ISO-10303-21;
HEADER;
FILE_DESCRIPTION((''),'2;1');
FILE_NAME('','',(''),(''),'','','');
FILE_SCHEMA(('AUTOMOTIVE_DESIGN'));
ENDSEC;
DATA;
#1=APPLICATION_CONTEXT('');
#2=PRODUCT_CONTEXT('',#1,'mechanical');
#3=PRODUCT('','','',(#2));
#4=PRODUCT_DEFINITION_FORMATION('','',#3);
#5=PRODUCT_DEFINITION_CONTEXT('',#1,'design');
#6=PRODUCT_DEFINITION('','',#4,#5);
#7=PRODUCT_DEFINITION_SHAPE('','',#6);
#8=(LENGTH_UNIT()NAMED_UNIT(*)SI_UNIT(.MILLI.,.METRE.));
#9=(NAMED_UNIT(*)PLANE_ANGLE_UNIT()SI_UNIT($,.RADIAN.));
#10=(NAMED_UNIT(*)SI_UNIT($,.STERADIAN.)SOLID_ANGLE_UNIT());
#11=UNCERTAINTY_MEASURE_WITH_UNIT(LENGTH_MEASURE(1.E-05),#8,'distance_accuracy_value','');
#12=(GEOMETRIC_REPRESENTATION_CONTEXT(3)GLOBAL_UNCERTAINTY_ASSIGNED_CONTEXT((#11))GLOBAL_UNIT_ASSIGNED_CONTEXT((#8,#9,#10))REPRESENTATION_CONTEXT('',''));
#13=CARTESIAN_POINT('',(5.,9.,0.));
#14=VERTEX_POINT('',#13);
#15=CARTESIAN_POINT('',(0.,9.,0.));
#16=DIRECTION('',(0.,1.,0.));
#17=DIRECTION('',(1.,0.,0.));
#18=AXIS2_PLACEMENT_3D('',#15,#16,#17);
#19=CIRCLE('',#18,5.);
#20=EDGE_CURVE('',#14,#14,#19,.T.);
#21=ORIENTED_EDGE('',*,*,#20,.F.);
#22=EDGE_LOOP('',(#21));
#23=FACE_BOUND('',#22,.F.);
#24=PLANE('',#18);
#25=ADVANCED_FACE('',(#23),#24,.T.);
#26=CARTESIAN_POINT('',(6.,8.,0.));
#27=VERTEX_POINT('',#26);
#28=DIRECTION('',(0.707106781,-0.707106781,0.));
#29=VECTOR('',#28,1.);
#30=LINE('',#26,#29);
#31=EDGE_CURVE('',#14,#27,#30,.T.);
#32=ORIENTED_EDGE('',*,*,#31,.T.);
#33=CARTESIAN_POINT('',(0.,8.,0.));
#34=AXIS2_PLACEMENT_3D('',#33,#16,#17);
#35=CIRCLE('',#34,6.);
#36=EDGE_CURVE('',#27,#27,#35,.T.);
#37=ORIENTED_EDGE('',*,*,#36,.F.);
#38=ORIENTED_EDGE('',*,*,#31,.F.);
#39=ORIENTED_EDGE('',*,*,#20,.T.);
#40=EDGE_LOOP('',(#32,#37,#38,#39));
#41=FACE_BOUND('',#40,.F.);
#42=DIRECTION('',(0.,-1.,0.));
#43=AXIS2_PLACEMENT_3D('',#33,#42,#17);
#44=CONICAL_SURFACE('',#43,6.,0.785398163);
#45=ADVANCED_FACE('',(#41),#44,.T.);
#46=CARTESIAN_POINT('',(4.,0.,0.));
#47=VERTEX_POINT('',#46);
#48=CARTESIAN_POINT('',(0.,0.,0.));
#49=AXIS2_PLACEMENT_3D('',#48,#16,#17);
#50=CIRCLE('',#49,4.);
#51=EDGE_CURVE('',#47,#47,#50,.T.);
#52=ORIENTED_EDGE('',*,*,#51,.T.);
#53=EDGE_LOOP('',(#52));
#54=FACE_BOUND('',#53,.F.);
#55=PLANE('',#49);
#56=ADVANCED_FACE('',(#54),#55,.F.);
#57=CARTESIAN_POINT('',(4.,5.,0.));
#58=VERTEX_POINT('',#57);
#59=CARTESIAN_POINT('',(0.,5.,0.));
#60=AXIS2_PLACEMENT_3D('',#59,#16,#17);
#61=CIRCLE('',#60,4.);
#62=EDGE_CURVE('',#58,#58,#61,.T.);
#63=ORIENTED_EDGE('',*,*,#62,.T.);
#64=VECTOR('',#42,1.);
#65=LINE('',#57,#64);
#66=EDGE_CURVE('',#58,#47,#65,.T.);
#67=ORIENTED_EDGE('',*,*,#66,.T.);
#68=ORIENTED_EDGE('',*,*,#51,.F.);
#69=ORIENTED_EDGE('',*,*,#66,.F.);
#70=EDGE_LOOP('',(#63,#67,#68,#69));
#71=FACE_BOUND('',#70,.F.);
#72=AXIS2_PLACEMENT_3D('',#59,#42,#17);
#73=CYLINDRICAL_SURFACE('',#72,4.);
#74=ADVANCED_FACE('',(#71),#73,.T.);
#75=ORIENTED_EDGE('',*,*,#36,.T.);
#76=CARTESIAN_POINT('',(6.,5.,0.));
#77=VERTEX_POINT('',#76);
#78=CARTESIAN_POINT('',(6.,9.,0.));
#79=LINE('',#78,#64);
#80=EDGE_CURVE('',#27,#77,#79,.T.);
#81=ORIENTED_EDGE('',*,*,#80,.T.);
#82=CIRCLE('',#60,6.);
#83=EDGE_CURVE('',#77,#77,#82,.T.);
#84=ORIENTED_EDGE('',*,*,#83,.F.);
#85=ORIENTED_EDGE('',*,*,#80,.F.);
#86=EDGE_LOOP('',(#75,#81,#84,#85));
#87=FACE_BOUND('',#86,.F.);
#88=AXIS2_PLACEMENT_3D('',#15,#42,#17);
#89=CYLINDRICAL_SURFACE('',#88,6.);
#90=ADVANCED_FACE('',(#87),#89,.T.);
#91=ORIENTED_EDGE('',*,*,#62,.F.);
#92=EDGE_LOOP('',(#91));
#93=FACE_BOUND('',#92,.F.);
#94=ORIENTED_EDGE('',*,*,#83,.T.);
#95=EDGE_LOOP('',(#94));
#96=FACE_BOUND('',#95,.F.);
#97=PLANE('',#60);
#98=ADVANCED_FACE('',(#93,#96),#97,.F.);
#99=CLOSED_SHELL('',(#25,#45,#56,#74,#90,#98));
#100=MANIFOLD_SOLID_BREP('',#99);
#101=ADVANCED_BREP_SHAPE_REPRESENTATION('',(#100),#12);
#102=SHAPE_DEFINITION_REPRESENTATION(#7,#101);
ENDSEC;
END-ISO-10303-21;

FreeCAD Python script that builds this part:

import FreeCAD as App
import Part
import Sketcher

V = App.Vector
Q = App.Units.Quantity


def edges_at(feature, points):
    """Names of the edges that pass closest to the given points."""
    edges = feature.Shape.Edges
    near = lambda p: min(range(len(edges)), key=lambda i: edges[i].distToShape(Part.Vertex(*p))[0])
    return sorted({f"Edge{near(p) + 1}" for p in points})

doc = App.newDocument("Part")
body = doc.addObject("PartDesign::Body", "Body")

sketch1 = doc.addObject("Sketcher::SketchObject", "Sketch")
body.addObject(sketch1)
sketch1.AttachmentSupport = (doc.XY_Plane, [""])
sketch1.MapMode = "FlatFace"
sketch1.addGeometry([
    Part.LineSegment(V(0, 9, 0), V(0, 0, 0)),
    Part.LineSegment(V(0, 0, 0), V(4, 0, 0)),
    Part.LineSegment(V(4, 0, 0), V(4, 5, 0)),
    Part.LineSegment(V(4, 5, 0), V(6, 5, 0)),
    Part.LineSegment(V(6, 5, 0), V(6, 9, 0)),
    Part.LineSegment(V(6, 9, 0), V(0, 9, 0)),
], False)
sketch1.addConstraint([
    Sketcher.Constraint("Coincident", 0, 2, 1, 1),
    Sketcher.Constraint("Coincident", 1, 2, 2, 1),
    Sketcher.Constraint("Coincident", 2, 2, 3, 1),
    Sketcher.Constraint("Coincident", 3, 2, 4, 1),
    Sketcher.Constraint("Coincident", 4, 2, 5, 1),
    Sketcher.Constraint("Coincident", 5, 2, 0, 1),
    Sketcher.Constraint("Vertical", 0),
    Sketcher.Constraint("Horizontal", 1),
    Sketcher.Constraint("Vertical", 2),
    Sketcher.Constraint("Horizontal", 3),
    Sketcher.Constraint("Vertical", 4),
    Sketcher.Constraint("Horizontal", 5),
    Sketcher.Constraint("Coincident", 0, 2, -1, 1),
    Sketcher.Constraint("Equal", 1, 4),
    Sketcher.Constraint("DistanceX", 1, 1, 1, 2, Q("4 mm")),
    Sketcher.Constraint("DistanceY", 2, 1, 2, 2, Q("5 mm")),
    Sketcher.Constraint("DistanceX", 3, 1, 3, 2, Q("2 mm")),
])
revolution = doc.addObject("PartDesign::Revolution", "Revolution")
body.addObject(revolution)
revolution.Profile = sketch1
revolution.ReferenceAxis = (sketch1, ["V_Axis"])
revolution.Angle = 360
doc.recompute()

chamfer = doc.addObject("PartDesign::Chamfer", "Chamfer")
body.addObject(chamfer)
chamfer.Base = (revolution, edges_at(revolution, [(-6, 9, 0)]))
chamfer.Size = 1

doc.recompute()
